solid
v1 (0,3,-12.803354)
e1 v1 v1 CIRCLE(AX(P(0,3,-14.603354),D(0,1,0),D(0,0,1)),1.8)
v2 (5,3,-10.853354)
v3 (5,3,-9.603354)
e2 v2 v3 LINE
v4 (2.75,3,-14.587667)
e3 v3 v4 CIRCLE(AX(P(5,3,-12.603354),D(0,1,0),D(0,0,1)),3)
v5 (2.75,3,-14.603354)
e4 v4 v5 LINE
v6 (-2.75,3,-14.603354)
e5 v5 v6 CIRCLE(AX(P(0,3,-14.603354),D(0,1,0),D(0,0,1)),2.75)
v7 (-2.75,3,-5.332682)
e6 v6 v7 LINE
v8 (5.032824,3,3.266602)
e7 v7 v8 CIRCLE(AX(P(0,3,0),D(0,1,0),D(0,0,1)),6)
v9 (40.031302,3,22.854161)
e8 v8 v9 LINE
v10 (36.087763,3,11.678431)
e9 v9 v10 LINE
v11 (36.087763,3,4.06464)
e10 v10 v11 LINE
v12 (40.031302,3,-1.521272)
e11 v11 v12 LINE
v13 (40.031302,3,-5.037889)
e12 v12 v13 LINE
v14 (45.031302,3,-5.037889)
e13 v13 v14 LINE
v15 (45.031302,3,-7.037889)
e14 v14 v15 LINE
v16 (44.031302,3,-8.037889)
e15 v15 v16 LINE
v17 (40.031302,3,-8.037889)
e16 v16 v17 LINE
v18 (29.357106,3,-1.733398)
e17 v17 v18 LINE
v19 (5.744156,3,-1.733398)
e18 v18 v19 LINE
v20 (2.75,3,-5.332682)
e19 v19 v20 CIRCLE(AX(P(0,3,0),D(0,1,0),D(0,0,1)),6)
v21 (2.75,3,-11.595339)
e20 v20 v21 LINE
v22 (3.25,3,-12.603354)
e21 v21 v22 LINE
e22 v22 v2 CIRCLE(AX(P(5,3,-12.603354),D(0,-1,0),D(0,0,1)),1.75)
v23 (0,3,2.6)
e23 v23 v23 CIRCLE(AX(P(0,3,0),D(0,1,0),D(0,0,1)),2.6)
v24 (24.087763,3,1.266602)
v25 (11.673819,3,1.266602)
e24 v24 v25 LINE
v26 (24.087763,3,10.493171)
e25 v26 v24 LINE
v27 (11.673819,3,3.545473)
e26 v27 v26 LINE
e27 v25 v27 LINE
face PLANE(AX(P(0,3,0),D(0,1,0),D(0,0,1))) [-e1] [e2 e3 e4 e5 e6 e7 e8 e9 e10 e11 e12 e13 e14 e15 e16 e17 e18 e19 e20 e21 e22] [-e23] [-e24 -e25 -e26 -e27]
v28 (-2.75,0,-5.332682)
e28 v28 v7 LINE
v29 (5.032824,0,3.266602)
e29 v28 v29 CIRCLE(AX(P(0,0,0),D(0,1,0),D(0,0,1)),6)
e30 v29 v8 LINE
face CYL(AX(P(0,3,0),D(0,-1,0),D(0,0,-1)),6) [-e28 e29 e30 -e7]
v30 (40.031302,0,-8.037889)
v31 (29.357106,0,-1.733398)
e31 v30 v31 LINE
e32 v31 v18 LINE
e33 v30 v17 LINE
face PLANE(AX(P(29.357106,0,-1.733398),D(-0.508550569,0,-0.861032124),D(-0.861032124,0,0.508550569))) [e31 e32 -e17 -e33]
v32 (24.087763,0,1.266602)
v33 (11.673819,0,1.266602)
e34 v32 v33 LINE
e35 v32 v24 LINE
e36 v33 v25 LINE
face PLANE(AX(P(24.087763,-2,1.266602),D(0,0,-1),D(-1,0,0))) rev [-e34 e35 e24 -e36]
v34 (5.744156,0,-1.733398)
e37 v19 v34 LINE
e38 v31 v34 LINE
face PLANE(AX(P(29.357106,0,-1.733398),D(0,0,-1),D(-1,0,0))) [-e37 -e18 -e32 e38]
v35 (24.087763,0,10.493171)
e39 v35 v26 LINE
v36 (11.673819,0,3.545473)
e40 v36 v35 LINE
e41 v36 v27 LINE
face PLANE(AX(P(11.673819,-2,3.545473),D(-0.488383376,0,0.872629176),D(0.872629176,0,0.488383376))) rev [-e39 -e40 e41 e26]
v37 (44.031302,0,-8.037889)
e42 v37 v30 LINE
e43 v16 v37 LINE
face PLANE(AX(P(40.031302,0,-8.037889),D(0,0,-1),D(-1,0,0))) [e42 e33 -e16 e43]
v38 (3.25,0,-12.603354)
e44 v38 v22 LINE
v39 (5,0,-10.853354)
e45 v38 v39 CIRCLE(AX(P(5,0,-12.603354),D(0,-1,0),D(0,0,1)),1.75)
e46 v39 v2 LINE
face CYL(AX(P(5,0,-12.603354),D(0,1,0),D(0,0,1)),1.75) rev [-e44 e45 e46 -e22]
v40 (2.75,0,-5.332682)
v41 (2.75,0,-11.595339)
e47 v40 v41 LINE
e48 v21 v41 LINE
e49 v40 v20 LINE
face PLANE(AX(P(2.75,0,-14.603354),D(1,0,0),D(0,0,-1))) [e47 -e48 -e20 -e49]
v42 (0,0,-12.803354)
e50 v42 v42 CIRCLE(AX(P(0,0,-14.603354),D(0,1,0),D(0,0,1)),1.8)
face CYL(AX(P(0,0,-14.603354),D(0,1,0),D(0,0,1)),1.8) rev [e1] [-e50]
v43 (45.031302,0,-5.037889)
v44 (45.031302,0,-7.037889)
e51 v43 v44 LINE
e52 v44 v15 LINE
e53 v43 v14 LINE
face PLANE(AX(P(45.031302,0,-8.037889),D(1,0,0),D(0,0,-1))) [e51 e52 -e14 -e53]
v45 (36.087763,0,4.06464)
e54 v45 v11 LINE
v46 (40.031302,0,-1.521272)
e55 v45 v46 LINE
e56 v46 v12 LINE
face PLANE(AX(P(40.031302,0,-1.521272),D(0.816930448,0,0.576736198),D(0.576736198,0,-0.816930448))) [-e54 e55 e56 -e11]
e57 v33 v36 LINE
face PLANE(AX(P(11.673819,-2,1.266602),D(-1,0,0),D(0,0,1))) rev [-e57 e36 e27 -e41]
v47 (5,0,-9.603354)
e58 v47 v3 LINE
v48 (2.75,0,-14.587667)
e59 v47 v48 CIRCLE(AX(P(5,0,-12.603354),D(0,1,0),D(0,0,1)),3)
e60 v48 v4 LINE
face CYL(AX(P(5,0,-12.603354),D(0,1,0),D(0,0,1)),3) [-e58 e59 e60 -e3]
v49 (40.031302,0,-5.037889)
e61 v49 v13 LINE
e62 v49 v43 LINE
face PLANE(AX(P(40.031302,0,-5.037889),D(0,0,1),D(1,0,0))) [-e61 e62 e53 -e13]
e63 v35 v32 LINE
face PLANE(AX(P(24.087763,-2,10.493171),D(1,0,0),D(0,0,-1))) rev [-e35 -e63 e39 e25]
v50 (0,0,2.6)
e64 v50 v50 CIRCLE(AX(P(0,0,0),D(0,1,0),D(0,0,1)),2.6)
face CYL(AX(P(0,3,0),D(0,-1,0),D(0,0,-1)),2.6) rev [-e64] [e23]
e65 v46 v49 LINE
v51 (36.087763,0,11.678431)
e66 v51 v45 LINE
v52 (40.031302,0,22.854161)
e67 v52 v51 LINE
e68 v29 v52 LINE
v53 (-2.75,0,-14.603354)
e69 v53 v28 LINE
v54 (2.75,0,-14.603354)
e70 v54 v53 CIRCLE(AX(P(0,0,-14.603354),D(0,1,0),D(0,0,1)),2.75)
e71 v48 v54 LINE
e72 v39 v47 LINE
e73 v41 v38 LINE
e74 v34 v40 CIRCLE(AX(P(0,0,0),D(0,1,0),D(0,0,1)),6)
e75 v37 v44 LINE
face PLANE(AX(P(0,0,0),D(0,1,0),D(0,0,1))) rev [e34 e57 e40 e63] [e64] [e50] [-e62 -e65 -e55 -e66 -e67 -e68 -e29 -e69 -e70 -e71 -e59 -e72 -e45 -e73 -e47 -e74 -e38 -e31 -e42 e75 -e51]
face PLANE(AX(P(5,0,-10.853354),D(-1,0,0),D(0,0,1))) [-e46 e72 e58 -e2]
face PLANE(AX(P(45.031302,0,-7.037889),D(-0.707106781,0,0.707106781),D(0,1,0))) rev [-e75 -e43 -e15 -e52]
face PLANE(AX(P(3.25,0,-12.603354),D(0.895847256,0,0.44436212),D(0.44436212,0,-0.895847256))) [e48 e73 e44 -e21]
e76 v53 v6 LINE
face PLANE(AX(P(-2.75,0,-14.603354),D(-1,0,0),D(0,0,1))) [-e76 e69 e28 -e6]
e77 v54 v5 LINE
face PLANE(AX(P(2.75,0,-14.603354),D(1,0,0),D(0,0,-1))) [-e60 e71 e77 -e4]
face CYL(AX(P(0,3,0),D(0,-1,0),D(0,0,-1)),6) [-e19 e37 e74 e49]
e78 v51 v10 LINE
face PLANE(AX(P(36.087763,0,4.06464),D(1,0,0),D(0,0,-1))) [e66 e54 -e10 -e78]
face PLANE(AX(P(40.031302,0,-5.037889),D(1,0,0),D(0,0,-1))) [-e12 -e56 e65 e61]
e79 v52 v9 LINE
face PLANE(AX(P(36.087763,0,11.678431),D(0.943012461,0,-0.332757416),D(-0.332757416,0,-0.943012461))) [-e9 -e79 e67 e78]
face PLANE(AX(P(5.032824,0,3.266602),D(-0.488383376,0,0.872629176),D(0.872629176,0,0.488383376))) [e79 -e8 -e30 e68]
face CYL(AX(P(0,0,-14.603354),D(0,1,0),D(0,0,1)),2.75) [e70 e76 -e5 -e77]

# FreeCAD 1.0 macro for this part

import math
import FreeCAD as App
import Part
import Sketcher
Q = App.Units.Quantity


def edges_at(feature, points):
    """Names of the edges that pass closest to the given points."""
    edges = feature.Shape.Edges
    near = lambda p: min(range(len(edges)), key=lambda i: edges[i].distToShape(Part.Vertex(*p))[0])
    return sorted({f"Edge{near(p) + 1}" for p in points})

doc = App.newDocument("Part")
params = doc.addObject("Spreadsheet::Sheet", "Params")
for row, (alias, value) in enumerate([
    ("sketch1_diameter", "12 mm"),
    ("sketch1_diameter2", "5.2 mm"),
    ("pad1_length", "3 mm"),
    ("sketch2_diameter", "3.6 mm"),
    ("sketch2_radius", "2.75 mm"),
    ("pad2_length", "3 mm"),
    ("sketch3_radius", "3 mm"),
    ("sketch3_radius2", "1.75 mm"),
    ("pad3_length", "3 mm"),
    ("sketch4_width", "5 mm"),
    ("sketch4_height", "3 mm"),
    ("pad4_length", "3 mm"),
    ("chamfer_size", "1 mm"),
    ("pocket1_length", "10 mm"),
], start=1):
    params.set(f"A{row}", alias)
    params.set(f"B{row}", "=" + value)
    params.setAlias(f"B{row}", alias)

body = doc.addObject("PartDesign::Body", "Body")

# Sketch on XZ plane
sketch1 = doc.addObject("Sketcher::SketchObject", "Sketch")
body.addObject(sketch1)
sketch1.AttachmentSupport = (doc.XZ_Plane, [""])
sketch1.MapMode = "FlatFace"
sketch1.addGeometry([
    Part.Circle(App.Vector(0, 0, 0), App.Vector(0, 0, 1), 6),
    Part.Circle(App.Vector(0, 0, 0), App.Vector(0, 0, 1), 2.6),
], False)
sketch1.addConstraint([
    Sketcher.Constraint("Coincident", 0, 3, -1, 1),
    Sketcher.Constraint("Coincident", 1, 3, -1, 1),
    Sketcher.Constraint("Diameter", 0, Q("12 mm")),
    Sketcher.Constraint("Diameter", 1, Q("5.2 mm")),
])
sketch1.setExpression("Constraints[2]", "Params.sketch1_diameter")
sketch1.setExpression("Constraints[3]", "Params.sketch1_diameter2")
pad1 = doc.addObject("PartDesign::Pad", "Pad")
body.addObject(pad1)
pad1.Profile = sketch1
pad1.setExpression("Length", "Params.pad1_length")
pad1.Reversed = True

# Sketch on XZ plane
sketch2 = doc.addObject("Sketcher::SketchObject", "Sketch001")
body.addObject(sketch2)
sketch2.AttachmentSupport = (doc.XZ_Plane, [""])
sketch2.MapMode = "FlatFace"
sketch2.AttachmentOffset = App.Placement(App.Vector(0, 0, -3), App.Rotation())
sketch2.addGeometry([
    Part.LineSegment(App.Vector(-2.8, -14.6, 0), App.Vector(-2.8, -5.3, 0)),  # 0
    Part.LineSegment(App.Vector(-2.8, -5.3, 0), App.Vector(2.8, -5.3, 0)),  # 1
    Part.LineSegment(App.Vector(2.8, -5.3, 0), App.Vector(2.8, -14.6, 0)),  # 2
    Part.ArcOfCircle(Part.Circle(App.Vector(0, -14.6, 0), App.Vector(0, 0, 1), 2.8), math.radians(180), math.radians(360)),  # 3
    Part.Circle(App.Vector(0, -14.6, 0), App.Vector(0, 0, 1), 1.8),  # 4
], False)
sketch2.addConstraint([
    Sketcher.Constraint("Coincident", 0, 2, 1, 1),
    Sketcher.Constraint("Coincident", 1, 2, 2, 1),
    Sketcher.Constraint("Tangent", 2, 2, 3, 2),
    Sketcher.Constraint("Tangent", 3, 1, 0, 1),
    Sketcher.Constraint("Vertical", 0),
    Sketcher.Constraint("Horizontal", 1),
    Sketcher.Constraint("Vertical", 2),
    Sketcher.Constraint("Coincident", 4, 3, 3, 3),
    Sketcher.Constraint("PointOnObject", 3, 3, -2),
    Sketcher.Constraint("Diameter", 4, Q("3.6 mm")),
    Sketcher.Constraint("Radius", 3, Q("2.75 mm")),
    Sketcher.Constraint("DistanceY", 0, 1, 0, 2, Q("9.270672 mm")),
    Sketcher.Constraint("DistanceY", 3, 3, -1, 1, Q("14.603354 mm")),
])
sketch2.setExpression("Constraints[9]", "Params.sketch2_diameter")
sketch2.setExpression("Constraints[10]", "Params.sketch2_radius")
pad2 = doc.addObject("PartDesign::Pad", "Pad001")
body.addObject(pad2)
pad2.Profile = sketch2
pad2.setExpression("Length", "Params.pad2_length")

# Sketch on XZ plane
sketch3 = doc.addObject("Sketcher::SketchObject", "Sketch002")
body.addObject(sketch3)
sketch3.AttachmentSupport = (doc.XZ_Plane, [""])
sketch3.MapMode = "FlatFace"
sketch3.AttachmentOffset = App.Placement(App.Vector(0, 0, -3), App.Rotation())
sketch3.addGeometry([
    Part.LineSegment(App.Vector(2.5, -11, 0), App.Vector(3.2, -12.6, 0)),
    Part.ArcOfCircle(Part.Circle(App.Vector(5, -12.6, 0), App.Vector(0, 0, 1), 1.8), math.radians(180), math.radians(450)),
    Part.LineSegment(App.Vector(5, -10.9, 0), App.Vector(5, -9.6, 0)),
    Part.ArcOfCircle(Part.Circle(App.Vector(5, -12.6, 0), App.Vector(0, 0, 1), 3), math.radians(148), math.radians(450)),
], False)
sketch3.addConstraint([
    Sketcher.Constraint("Coincident", 0, 2, 1, 1),
    Sketcher.Constraint("Coincident", 1, 2, 2, 1),
    Sketcher.Constraint("Coincident", 2, 2, 3, 2),
    Sketcher.Constraint("Coincident", 3, 1, 0, 1),
    Sketcher.Constraint("Vertical", 2),
    Sketcher.Constraint("Coincident", 3, 3, 1, 3),
    Sketcher.Constraint("Horizontal", 3, 3, 0, 2),
    Sketcher.Constraint("Vertical", 3, 3, 1, 2),
    Sketcher.Constraint("Radius", 3, Q("3 mm")),
    Sketcher.Constraint("Radius", 1, Q("1.75 mm")),
    Sketcher.Constraint("DistanceX", -1, 1, 1, 3, Q("5 mm")),
    Sketcher.Constraint("Distance", 0, Q("1.780142 mm")),
    Sketcher.Constraint("DistanceY", 3, 1, -1, 1, Q("11.008619 mm")),
])
sketch3.setExpression("Constraints[8]", "Params.sketch3_radius")
sketch3.setExpression("Constraints[9]", "Params.sketch3_radius2")
pad3 = doc.addObject("PartDesign::Pad", "Pad002")
body.addObject(pad3)
pad3.Profile = sketch3
pad3.setExpression("Length", "Params.pad3_length")

# Sketch on XZ plane
sketch4 = doc.addObject("Sketcher::SketchObject", "Sketch003")
body.addObject(sketch4)
sketch4.AttachmentSupport = (doc.XZ_Plane, [""])
sketch4.MapMode = "FlatFace"
sketch4.AttachmentOffset = App.Placement(App.Vector(0, 0, -3), App.Rotation())
sketch4.addGeometry([
    Part.LineSegment(App.Vector(5, 3.3, 0), App.Vector(40, 22.9, 0)),  # 0
    Part.LineSegment(App.Vector(40, 22.9, 0), App.Vector(36.1, 11.7, 0)),  # 1
    Part.LineSegment(App.Vector(36.1, 11.7, 0), App.Vector(36.1, 4.1, 0)),  # 2
    Part.LineSegment(App.Vector(36.1, 4.1, 0), App.Vector(40, -1.5, 0)),  # 3
    Part.LineSegment(App.Vector(40, -1.5, 0), App.Vector(40, -5, 0)),  # 4
    Part.LineSegment(App.Vector(40, -5, 0), App.Vector(45, -5, 0)),  # 5
    Part.LineSegment(App.Vector(45, -5, 0), App.Vector(45, -8, 0)),  # 6
    Part.LineSegment(App.Vector(45, -8, 0), App.Vector(40, -8, 0)),  # 7
    Part.LineSegment(App.Vector(40, -8, 0), App.Vector(29.4, -1.7, 0)),  # 8
    Part.LineSegment(App.Vector(29.4, -1.7, 0), App.Vector(5, -1.7, 0)),  # 9
    Part.LineSegment(App.Vector(5, -1.7, 0), App.Vector(5, 3.3, 0)),  # 10
], False)
sketch4.addConstraint([
    Sketcher.Constraint("Coincident", 0, 2, 1, 1),
    Sketcher.Constraint("Coincident", 1, 2, 2, 1),
    Sketcher.Constraint("Coincident", 2, 2, 3, 1),
    Sketcher.Constraint("Coincident", 3, 2, 4, 1),
    Sketcher.Constraint("Coincident", 4, 2, 5, 1),
    Sketcher.Constraint("Coincident", 5, 2, 6, 1),
    Sketcher.Constraint("Coincident", 6, 2, 7, 1),
    Sketcher.Constraint("Coincident", 7, 2, 8, 1),
    Sketcher.Constraint("Coincident", 8, 2, 9, 1),
    Sketcher.Constraint("Coincident", 9, 2, 10, 1),
    Sketcher.Constraint("Coincident", 10, 2, 0, 1),
    Sketcher.Constraint("Vertical", 2),
    Sketcher.Constraint("Vertical", 4),
    Sketcher.Constraint("Horizontal", 5),
    Sketcher.Constraint("Vertical", 6),
    Sketcher.Constraint("Horizontal", 7),
    Sketcher.Constraint("Horizontal", 9),
    Sketcher.Constraint("Vertical", 10),
    Sketcher.Constraint("Vertical", 0, 2, 3, 2),
    Sketcher.Constraint("Vertical", 4, 2, 7, 2),
    Sketcher.Constraint("Equal", 7, 10),
    Sketcher.Constraint("DistanceX", 5, 1, 5, 2, Q("5 mm")),
    Sketcher.Constraint("DistanceY", 6, 2, 6, 1, Q("3 mm")),
    Sketcher.Constraint("DistanceY", 2, 2, 2, 1, Q("7.613791 mm")),
    Sketcher.Constraint("DistanceY", 8, 2, -1, 1, Q("1.733398 mm")),
    Sketcher.Constraint("Distance", 0, Q("40.106932 mm")),
    Sketcher.Constraint("Distance", 8, Q("12.396978 mm")),
    Sketcher.Constraint("DistanceX", 9, 2, 9, 1, Q("24.324282 mm")),
    Sketcher.Constraint("DistanceY", 4, 2, 4, 1, Q("3.516617 mm")),
    Sketcher.Constraint("DistanceY", -1, 1, 0, 2, Q("22.854161 mm")),
    Sketcher.Constraint("DistanceY", -1, 1, 1, 2, Q("11.678431 mm")),
    Sketcher.Constraint("DistanceX", 1, 2, 0, 2, Q("3.94354 mm")),
    Sketcher.Constraint("DistanceX", -1, 1, 0, 2, Q("40.031302 mm")),
])
sketch4.setExpression("Constraints[21]", "Params.sketch4_width")
sketch4.setExpression("Constraints[22]", "Params.sketch4_height")
pad4 = doc.addObject("PartDesign::Pad", "Pad003")
body.addObject(pad4)
pad4.Profile = sketch4
pad4.setExpression("Length", "Params.pad4_length")
doc.recompute()

chamfer = doc.addObject("PartDesign::Chamfer", "Chamfer")
body.addObject(chamfer)
chamfer.Base = (pad4, edges_at(pad4, [(45.031, 1.5, -8.038)]))
chamfer.setExpression("Size", "Params.chamfer_size")

# Sketch on XZ plane
sketch5 = doc.addObject("Sketcher::SketchObject", "Sketch004")
body.addObject(sketch5)
sketch5.AttachmentSupport = (doc.XZ_Plane, [""])
sketch5.MapMode = "FlatFace"
sketch5.AttachmentOffset = App.Placement(App.Vector(0, 0, -3), App.Rotation())
sketch5.addGeometry([
    Part.LineSegment(App.Vector(11.7, 3.5, 0), App.Vector(24.1, 10.5, 0)),
    Part.LineSegment(App.Vector(24.1, 10.5, 0), App.Vector(24.1, 1.3, 0)),
    Part.LineSegment(App.Vector(24.1, 1.3, 0), App.Vector(11.7, 1.3, 0)),
    Part.LineSegment(App.Vector(11.7, 1.3, 0), App.Vector(11.7, 3.5, 0)),
], False)
sketch5.addConstraint([
    Sketcher.Constraint("Coincident", 0, 2, 1, 1),
    Sketcher.Constraint("Coincident", 1, 2, 2, 1),
    Sketcher.Constraint("Coincident", 2, 2, 3, 1),
    Sketcher.Constraint("Coincident", 3, 2, 0, 1),
    Sketcher.Constraint("Vertical", 1),
    Sketcher.Constraint("Horizontal", 2),
    Sketcher.Constraint("Vertical", 3),
    Sketcher.Constraint("DistanceY", 1, 2, 1, 1, Q("9.22657 mm")),
    Sketcher.Constraint("DistanceY", 3, 1, 3, 2, Q("2.278872 mm")),
    Sketcher.Constraint("DistanceY", -1, 1, 1, 2, Q("1.266602 mm")),
    Sketcher.Constraint("Distance", 0, Q("14.22591 mm")),
    Sketcher.Constraint("DistanceX", -1, 1, 2, 2, Q("11.673819 mm")),
])
pocket1 = doc.addObject("PartDesign::Pocket", "Pocket")
body.addObject(pocket1)
pocket1.Profile = sketch5
pocket1.setExpression("Length", "Params.pocket1_length")
pocket1.Midplane = True

doc.recompute()
